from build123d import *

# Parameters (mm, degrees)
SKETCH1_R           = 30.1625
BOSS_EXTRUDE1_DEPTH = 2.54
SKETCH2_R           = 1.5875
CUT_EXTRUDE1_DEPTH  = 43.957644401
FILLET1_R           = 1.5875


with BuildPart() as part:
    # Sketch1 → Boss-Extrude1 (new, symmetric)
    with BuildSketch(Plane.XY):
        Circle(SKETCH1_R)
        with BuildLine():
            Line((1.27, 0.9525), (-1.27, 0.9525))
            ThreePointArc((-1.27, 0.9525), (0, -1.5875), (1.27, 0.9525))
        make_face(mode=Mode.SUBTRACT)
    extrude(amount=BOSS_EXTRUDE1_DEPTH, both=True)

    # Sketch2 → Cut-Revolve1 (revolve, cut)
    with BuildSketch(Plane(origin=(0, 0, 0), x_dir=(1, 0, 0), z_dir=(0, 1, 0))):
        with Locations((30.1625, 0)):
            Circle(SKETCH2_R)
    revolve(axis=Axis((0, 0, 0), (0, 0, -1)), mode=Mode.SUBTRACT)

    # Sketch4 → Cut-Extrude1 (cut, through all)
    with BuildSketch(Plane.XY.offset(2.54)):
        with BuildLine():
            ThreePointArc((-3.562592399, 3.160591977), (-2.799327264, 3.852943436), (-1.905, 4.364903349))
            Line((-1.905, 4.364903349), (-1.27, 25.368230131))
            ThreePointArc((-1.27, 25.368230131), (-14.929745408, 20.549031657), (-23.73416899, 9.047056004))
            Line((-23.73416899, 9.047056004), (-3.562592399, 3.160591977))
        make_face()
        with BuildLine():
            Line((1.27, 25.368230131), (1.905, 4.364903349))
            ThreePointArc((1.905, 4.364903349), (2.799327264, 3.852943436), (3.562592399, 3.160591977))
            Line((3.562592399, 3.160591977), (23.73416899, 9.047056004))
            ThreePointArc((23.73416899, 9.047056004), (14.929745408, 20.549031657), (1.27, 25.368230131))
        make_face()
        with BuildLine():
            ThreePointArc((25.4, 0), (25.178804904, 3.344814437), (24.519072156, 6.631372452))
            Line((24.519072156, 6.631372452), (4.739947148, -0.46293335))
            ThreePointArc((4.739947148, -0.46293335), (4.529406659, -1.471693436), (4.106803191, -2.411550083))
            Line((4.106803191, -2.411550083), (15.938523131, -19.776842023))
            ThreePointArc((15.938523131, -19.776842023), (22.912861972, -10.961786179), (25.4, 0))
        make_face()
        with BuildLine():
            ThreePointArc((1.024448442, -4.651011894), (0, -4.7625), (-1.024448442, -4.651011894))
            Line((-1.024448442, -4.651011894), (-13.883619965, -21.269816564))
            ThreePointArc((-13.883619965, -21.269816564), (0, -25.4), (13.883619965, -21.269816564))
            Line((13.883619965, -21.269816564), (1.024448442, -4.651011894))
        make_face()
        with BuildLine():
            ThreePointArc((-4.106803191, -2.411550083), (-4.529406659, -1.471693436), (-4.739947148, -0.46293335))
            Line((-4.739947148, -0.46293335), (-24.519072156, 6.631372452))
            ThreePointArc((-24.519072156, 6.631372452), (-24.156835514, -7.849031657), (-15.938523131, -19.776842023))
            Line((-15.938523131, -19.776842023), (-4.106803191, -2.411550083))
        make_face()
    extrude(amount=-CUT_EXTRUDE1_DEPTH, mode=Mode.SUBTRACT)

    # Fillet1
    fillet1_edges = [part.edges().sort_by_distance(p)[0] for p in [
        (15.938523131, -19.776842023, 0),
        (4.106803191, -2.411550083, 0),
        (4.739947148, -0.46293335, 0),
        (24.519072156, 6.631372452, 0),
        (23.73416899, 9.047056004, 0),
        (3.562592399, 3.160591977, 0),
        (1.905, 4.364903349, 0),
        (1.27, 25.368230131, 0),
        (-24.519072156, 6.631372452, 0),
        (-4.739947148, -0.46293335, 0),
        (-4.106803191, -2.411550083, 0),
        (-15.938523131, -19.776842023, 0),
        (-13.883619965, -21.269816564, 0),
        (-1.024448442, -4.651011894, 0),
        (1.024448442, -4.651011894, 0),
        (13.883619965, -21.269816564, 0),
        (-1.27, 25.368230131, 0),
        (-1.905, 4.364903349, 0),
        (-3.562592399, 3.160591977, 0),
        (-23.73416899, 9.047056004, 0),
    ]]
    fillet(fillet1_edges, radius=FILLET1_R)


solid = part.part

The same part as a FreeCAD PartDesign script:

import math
import FreeCAD as App
import Part
import Sketcher
from FreeCAD import Vector
Q = App.Units.Quantity


def edges_at(feature, points):
    """Names of the edges that pass closest to the given points."""
    edges = feature.Shape.Edges
    near = lambda p: min(range(len(edges)), key=lambda i: edges[i].distToShape(Part.Vertex(*p))[0])
    return sorted({f"Edge{near(p) + 1}" for p in points})

doc = App.newDocument("Part")
params = doc.addObject("Spreadsheet::Sheet", "Params")
for row, (alias, value) in enumerate([
    ("sketch1_diameter", "2.375 in"),
    ("sketch1_width", "0.1 in"),
    ("sketch1_radius", "0.0625 in"),
    ("pad1_length", "0.2 in"),
    ("sketch2_diameter", "0.125 in"),
    ("groove_angle", "360 deg"),
    ("sketch3_radius", "1 in"),
    ("sketch3_radius2", "0.1875 in"),
    ("fillet_radius", "0.0625 in"),
], start=1):
    params.set(f"A{row}", alias)
    params.set(f"B{row}", "=" + value)
    params.setAlias(f"B{row}", alias)

body = doc.addObject("PartDesign::Body", "Body")

# Sketch on XY plane
sketch1 = body.newObject("Sketcher::SketchObject", "Sketch")
sketch1.AttachmentSupport = (doc.getObject("XY_Plane"), [""])
sketch1.MapMode = "FlatFace"
sketch1.addGeometry(Part.Circle(Vector(0, 0, 0), Vector(0, 0, 1), 30.2), False)
sketch1.addGeometry(Part.LineSegment(Vector(-1.3, 1, 0), Vector(1.3, 1, 0)), False)
sketch1.addGeometry(Part.ArcOfCircle(Part.Circle(Vector(0, 0, 0), Vector(0, 0, 1), 1.6), math.radians(143), math.radians(397)), False)
sketch1.addConstraint(Sketcher.Constraint("Coincident", 1, 1, 2, 1))
sketch1.addConstraint(Sketcher.Constraint("Coincident", 2, 2, 1, 2))
sketch1.addConstraint(Sketcher.Constraint("Horizontal", 1))
sketch1.addConstraint(Sketcher.Constraint("Coincident", 0, 3, -1, 1))
sketch1.addConstraint(Sketcher.Constraint("Coincident", 2, 3, -1, 1))
sketch1.addConstraint(Sketcher.Constraint("Diameter", 0, Q("2.375 in")))
sketch1.addConstraint(Sketcher.Constraint("DistanceX", 1, 1, 1, 2, Q("0.1 in")))
sketch1.addConstraint(Sketcher.Constraint("Radius", 2, Q("0.0625 in")))
sketch1.setExpression("Constraints[5]", "Params.sketch1_diameter")
sketch1.setExpression("Constraints[6]", "Params.sketch1_width")
sketch1.setExpression("Constraints[7]", "Params.sketch1_radius")
pad1 = body.newObject("PartDesign::Pad", "Pad")
pad1.Profile = sketch1
pad1.setExpression("Length", "Params.pad1_length")
pad1.Midplane = True

# Sketch on XZ plane
sketch2 = body.newObject("Sketcher::SketchObject", "Sketch001")
sketch2.AttachmentSupport = (doc.getObject("XZ_Plane"), [""])
sketch2.MapMode = "FlatFace"
sketch2.addGeometry(Part.Circle(Vector(30.2, 0, 0), Vector(0, 0, 1), 1.6), False)
sketch2.addConstraint(Sketcher.Constraint("PointOnObject", 0, 3, -1))
sketch2.addConstraint(Sketcher.Constraint("Diameter", 0, Q("0.125 in")))
sketch2.addConstraint(Sketcher.Constraint("DistanceX", -1, 1, 0, 3, Q("1.1875 in")))
sketch2.setExpression("Constraints[1]", "Params.sketch2_diameter")
groove = body.newObject("PartDesign::Groove", "Groove")
groove.Profile = sketch2
groove.ReferenceAxis = (sketch2, ["V_Axis"])
groove.setExpression("Angle", "Params.groove_angle")

# Sketch on XY plane
sketch3 = body.newObject("Sketcher::SketchObject", "Sketch002")
sketch3.AttachmentSupport = (doc.getObject("XY_Plane"), [""])
sketch3.MapMode = "FlatFace"
sketch3.AttachmentOffset = App.Placement(Vector(0, 0, 0.1 * 25.4), App.Rotation())
sketch3.addGeometry(Part.ArcOfCircle(Part.Circle(Vector(0, 0, 0), Vector(0, 0, 1), 4.8), math.radians(114), math.radians(138)), False)
sketch3.addGeometry(Part.LineSegment(Vector(-1.9, 4.4, 0), Vector(-1.3, 25.4, 0)), False)
sketch3.addGeometry(Part.ArcOfCircle(Part.Circle(Vector(0, 0, 0), Vector(0, 0, 1), 25.4), math.radians(93), math.radians(159)), False)
sketch3.addGeometry(Part.LineSegment(Vector(-23.7, 9, 0), Vector(-3.6, 3.2, 0)), False)
sketch3.addGeometry(Part.LineSegment(Vector(1.3, 25.4, 0), Vector(1.9, 4.4, 0)), False)
sketch3.addGeometry(Part.ArcOfCircle(Part.Circle(Vector(0, 0, 0), Vector(0, 0, 1), 4.8), math.radians(42), math.radians(66)), False)
sketch3.addGeometry(Part.LineSegment(Vector(3.6, 3.2, 0), Vector(23.7, 9, 0)), False)
sketch3.addGeometry(Part.ArcOfCircle(Part.Circle(Vector(0, 0, 0), Vector(0, 0, 1), 25.4), math.radians(21), math.radians(87)), False)
sketch3.addGeometry(Part.ArcOfCircle(Part.Circle(Vector(0, 0, 0), Vector(0, 0, 1), 25.4), math.radians(0), math.radians(15.13)), False)
sketch3.addGeometry(Part.LineSegment(Vector(24.5, 6.6, 0), Vector(4.7, -0.5, 0)), False)
sketch3.addGeometry(Part.ArcOfCircle(Part.Circle(Vector(0, 0, 0), Vector(0, 0, 1), 4.8), math.radians(-30), math.radians(-6)), False)
sketch3.addGeometry(Part.LineSegment(Vector(4.1, -2.4, 0), Vector(15.9, -19.8, 0)), False)
sketch3.addGeometry(Part.ArcOfCircle(Part.Circle(Vector(0, 0, 0), Vector(0, 0, 1), 25.4), math.radians(-51), math.radians(0)), False)
sketch3.addGeometry(Part.ArcOfCircle(Part.Circle(Vector(0, 0, 0), Vector(0, 0, 1), 4.8), math.radians(-102), math.radians(-78)), False)
sketch3.addGeometry(Part.LineSegment(Vector(-1, -4.7, 0), Vector(-13.9, -21.3, 0)), False)
sketch3.addGeometry(Part.ArcOfCircle(Part.Circle(Vector(0, 0, 0), Vector(0, 0, 1), 25.4), math.radians(-123), math.radians(-57)), False)
sketch3.addGeometry(Part.LineSegment(Vector(13.9, -21.3, 0), Vector(1, -4.7, 0)), False)
sketch3.addGeometry(Part.ArcOfCircle(Part.Circle(Vector(0, 0, 0), Vector(0, 0, 1), 4.8), math.radians(-174), math.radians(-150)), False)
sketch3.addGeometry(Part.LineSegment(Vector(-4.7, -0.5, 0), Vector(-24.5, 6.6, 0)), False)
sketch3.addGeometry(Part.ArcOfCircle(Part.Circle(Vector(0, 0, 0), Vector(0, 0, 1), 25.4), math.radians(165), math.radians(231)), False)
sketch3.addGeometry(Part.LineSegment(Vector(-15.9, -19.8, 0), Vector(-4.1, -2.4, 0)), False)
sketch3.addConstraint(Sketcher.Constraint("Coincident", 0, 1, 1, 1))
sketch3.addConstraint(Sketcher.Constraint("Coincident", 1, 2, 2, 1))
sketch3.addConstraint(Sketcher.Constraint("Coincident", 2, 2, 3, 1))
sketch3.addConstraint(Sketcher.Constraint("Coincident", 3, 2, 0, 2))
sketch3.addConstraint(Sketcher.Constraint("Coincident", 4, 2, 5, 2))
sketch3.addConstraint(Sketcher.Constraint("Coincident", 5, 1, 6, 1))
sketch3.addConstraint(Sketcher.Constraint("Coincident", 6, 2, 7, 1))
sketch3.addConstraint(Sketcher.Constraint("Coincident", 7, 2, 4, 1))
sketch3.addConstraint(Sketcher.Constraint("Coincident", 8, 2, 9, 1))
sketch3.addConstraint(Sketcher.Constraint("Coincident", 9, 2, 10, 2))
sketch3.addConstraint(Sketcher.Constraint("Coincident", 10, 1, 11, 1))
sketch3.addConstraint(Sketcher.Constraint("Coincident", 11, 2, 12, 1))
sketch3.addConstraint(Sketcher.Constraint("Tangent", 12, 2, 8, 1))
sketch3.addConstraint(Sketcher.Constraint("Coincident", 13, 1, 14, 1))
sketch3.addConstraint(Sketcher.Constraint("Coincident", 14, 2, 15, 1))
sketch3.addConstraint(Sketcher.Constraint("Coincident", 15, 2, 16, 1))
sketch3.addConstraint(Sketcher.Constraint("Coincident", 16, 2, 13, 2))
sketch3.addConstraint(Sketcher.Constraint("Coincident", 17, 1, 18, 1))
sketch3.addConstraint(Sketcher.Constraint("Coincident", 18, 2, 19, 1))
sketch3.addConstraint(Sketcher.Constraint("Coincident", 19, 2, 20, 1))
sketch3.addConstraint(Sketcher.Constraint("Coincident", 20, 2, 17, 2))
sketch3.addConstraint(Sketcher.Constraint("Coincident", 0, 3, -1, 1))
sketch3.addConstraint(Sketcher.Constraint("Coincident", 2, 3, -1, 1))
sketch3.addConstraint(Sketcher.Constraint("Coincident", 5, 3, -1, 1))
sketch3.addConstraint(Sketcher.Constraint("Coincident", 7, 3, -1, 1))
sketch3.addConstraint(Sketcher.Constraint("Coincident", 8, 3, -1, 1))
sketch3.addConstraint(Sketcher.Constraint("Coincident", 10, 3, -1, 1))
sketch3.addConstraint(Sketcher.Constraint("Coincident", 13, 3, -1, 1))
sketch3.addConstraint(Sketcher.Constraint("Coincident", 15, 3, -1, 1))
sketch3.addConstraint(Sketcher.Constraint("Coincident", 17, 3, -1, 1))
sketch3.addConstraint(Sketcher.Constraint("Coincident", 19, 3, -1, 1))
sketch3.addConstraint(Sketcher.Constraint("Equal", 0, 5))
sketch3.addConstraint(Sketcher.Constraint("Equal", 2, 7))
sketch3.addConstraint(Sketcher.Constraint("Equal", 7, 8))
sketch3.addConstraint(Sketcher.Constraint("Equal", 5, 10))
sketch3.addConstraint(Sketcher.Constraint("Equal", 8, 12))
sketch3.addConstraint(Sketcher.Constraint("Equal", 10, 13))
sketch3.addConstraint(Sketcher.Constraint("Equal", 12, 15))
sketch3.addConstraint(Sketcher.Constraint("Equal", 13, 17))
sketch3.addConstraint(Sketcher.Constraint("Equal", 15, 19))
sketch3.addConstraint(Sketcher.Constraint("PointOnObject", 12, 2, -1))
sketch3.addConstraint(Sketcher.Constraint("Horizontal", 0, 1, 4, 2))
sketch3.addConstraint(Sketcher.Constraint("Horizontal", 3, 2, 5, 1))
sketch3.addConstraint(Sketcher.Constraint("Horizontal", 2, 2, 6, 2))
sketch3.addConstraint(Sketcher.Constraint("Horizontal", 1, 2, 7, 2))
sketch3.addConstraint(Sketcher.Constraint("Horizontal", 14, 2, 15, 2))
sketch3.addConstraint(Sketcher.Constraint("Horizontal", 13, 1, 16, 2))
sketch3.addConstraint(Sketcher.Constraint("Horizontal", 9, 2, 17, 1))
sketch3.addConstraint(Sketcher.Constraint("Horizontal", 8, 2, 18, 2))
sketch3.addConstraint(Sketcher.Constraint("Horizontal", 11, 2, 19, 2))
sketch3.addConstraint(Sketcher.Constraint("Horizontal", 10, 1, 20, 2))
sketch3.addConstraint(Sketcher.Constraint("Equal", 1, 3))
sketch3.addConstraint(Sketcher.Constraint("Equal", 6, 9))
sketch3.addConstraint(Sketcher.Constraint("Equal", 9, 11))
sketch3.addConstraint(Sketcher.Constraint("Equal", 11, 14))
sketch3.addConstraint(Sketcher.Constraint("Radius", 2, Q("1 in")))
sketch3.addConstraint(Sketcher.Constraint("Radius", 0, Q("0.1875 in")))
sketch3.addConstraint(Sketcher.Constraint("DistanceX", 1, 2, 7, 2, Q("0.1 in")))
sketch3.addConstraint(Sketcher.Constraint("DistanceX", 0, 1, 4, 2, Q("0.15 in")))
sketch3.addConstraint(Sketcher.Constraint("DistanceX", 2, 2, -1, 1, 23.734169))
sketch3.addConstraint(Sketcher.Constraint("DistanceY", 10, 1, -1, 1, 2.41155))
sketch3.addConstraint(Sketcher.Constraint("DistanceX", 13, 1, -1, 1, 1.024448))
sketch3.addConstraint(Sketcher.Constraint("DistanceX", 5, 1, 8, 2, 20.95648))
sketch3.setExpression("Constraints[55]", "Params.sketch3_radius")
sketch3.setExpression("Constraints[56]", "Params.sketch3_radius2")
pocket1 = body.newObject("PartDesign::Pocket", "Pocket")
pocket1.Profile = sketch3
pocket1.Type = "ThroughAll"
doc.recompute()

fillet = body.newObject("PartDesign::Fillet", "Fillet")
fillet.Base = (pocket1, edges_at(pocket1, [
    (15.939, -19.777, 0),
    (4.107, -2.412, 0),
    (4.74, -0.463, 0),
    (24.519, 6.631, 0),
    (23.734, 9.047, 0),
    (3.563, 3.161, 0),
    (1.905, 4.365, 0),
    (1.27, 25.368, 0),
    (-24.519, 6.631, 0),
    (-4.74, -0.463, 0),
    (-4.107, -2.412, 0),
    (-15.939, -19.777, 0),
    (-13.884, -21.27, 0),
    (-1.024, -4.651, 0),
    (1.024, -4.651, 0),
    (13.884, -21.27, 0),
    (-1.27, 25.368, 0),
    (-1.905, 4.365, 0),
    (-3.563, 3.161, 0),
    (-23.734, 9.047, 0),
]))
fillet.setExpression("Radius", "Params.fillet_radius")

doc.recompute()
